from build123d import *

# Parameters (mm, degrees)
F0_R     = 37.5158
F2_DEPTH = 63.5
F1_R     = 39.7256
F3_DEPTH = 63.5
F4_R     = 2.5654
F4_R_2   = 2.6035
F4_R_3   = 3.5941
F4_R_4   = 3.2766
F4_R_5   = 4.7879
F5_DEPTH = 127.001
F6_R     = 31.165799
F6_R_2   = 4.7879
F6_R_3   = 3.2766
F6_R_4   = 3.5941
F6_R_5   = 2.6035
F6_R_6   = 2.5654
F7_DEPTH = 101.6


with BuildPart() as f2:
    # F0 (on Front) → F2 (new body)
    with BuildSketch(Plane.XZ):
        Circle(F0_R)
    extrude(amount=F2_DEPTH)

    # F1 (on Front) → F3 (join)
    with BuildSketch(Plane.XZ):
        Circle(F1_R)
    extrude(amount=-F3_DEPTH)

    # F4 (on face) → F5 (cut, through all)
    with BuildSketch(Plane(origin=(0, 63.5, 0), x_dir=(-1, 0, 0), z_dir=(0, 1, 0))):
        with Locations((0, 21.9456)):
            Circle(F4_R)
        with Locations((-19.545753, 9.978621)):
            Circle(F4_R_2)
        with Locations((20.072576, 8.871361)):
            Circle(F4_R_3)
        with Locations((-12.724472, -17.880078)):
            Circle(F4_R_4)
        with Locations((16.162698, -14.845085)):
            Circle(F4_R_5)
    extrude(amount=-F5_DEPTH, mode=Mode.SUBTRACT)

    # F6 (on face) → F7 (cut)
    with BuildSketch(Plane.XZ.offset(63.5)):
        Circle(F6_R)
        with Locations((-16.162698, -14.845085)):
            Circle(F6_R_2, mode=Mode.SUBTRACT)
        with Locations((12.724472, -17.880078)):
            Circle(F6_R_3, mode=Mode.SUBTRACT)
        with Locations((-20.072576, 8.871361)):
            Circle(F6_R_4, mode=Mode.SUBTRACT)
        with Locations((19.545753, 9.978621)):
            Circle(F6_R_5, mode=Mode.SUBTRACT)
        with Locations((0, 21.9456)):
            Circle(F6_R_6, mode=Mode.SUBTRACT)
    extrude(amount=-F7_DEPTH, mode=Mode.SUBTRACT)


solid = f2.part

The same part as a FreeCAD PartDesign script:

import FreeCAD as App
import Part
import Sketcher

V = App.Vector
Q = App.Units.Quantity

doc = App.newDocument("Part")
body = doc.addObject("PartDesign::Body", "Body")

# Sketch on XZ plane
sketch1 = doc.addObject("Sketcher::SketchObject", "Sketch")
body.addObject(sketch1)
sketch1.AttachmentSupport = (doc.XZ_Plane, [""])
sketch1.MapMode = "FlatFace"
sketch1.addGeometry(Part.Circle(V(0, 0, 0), V(0, 0, 1), 38), False)
sketch1.addConstraint([
    Sketcher.Constraint("Coincident", 0, 3, -1, 1),
    Sketcher.Constraint("Diameter", 0, Q("2.954 in")),
])
pad1 = doc.addObject("PartDesign::Pad", "Pad")
body.addObject(pad1)
pad1.Profile = sketch1
pad1.Length = Q("2.5 in")

# Sketch on XZ plane
sketch2 = doc.addObject("Sketcher::SketchObject", "Sketch001")
body.addObject(sketch2)
sketch2.AttachmentSupport = (doc.XZ_Plane, [""])
sketch2.MapMode = "FlatFace"
sketch2.addGeometry(Part.Circle(V(0, 0, 0), V(0, 0, 1), 40), False)
sketch2.addConstraint([
    Sketcher.Constraint("Coincident", 0, 3, -1, 1),
    Sketcher.Constraint("Diameter", 0, Q("3.128 in")),
])
pad2 = doc.addObject("PartDesign::Pad", "Pad001")
body.addObject(pad2)
pad2.Profile = sketch2
pad2.Length = Q("2.5 in")
pad2.Reversed = True

# Sketch on XZ plane
sketch3 = doc.addObject("Sketcher::SketchObject", "Sketch002")
body.addObject(sketch3)
sketch3.AttachmentSupport = (doc.XZ_Plane, [""])
sketch3.MapMode = "FlatFace"
sketch3.AttachmentOffset = App.Placement(V(0, 0, -2.5 * 25.4), App.Rotation())
sketch3.addGeometry([
    Part.Circle(V(0, 21.9, 0), V(0, 0, 1), 2.6),  # 0
    Part.Circle(V(19.5, 10, 0), V(0, 0, 1), 2.6),  # 1
    Part.Circle(V(-20.1, 8.9, 0), V(0, 0, 1), 3.6),  # 2
    Part.Circle(V(12.7, -17.9, 0), V(0, 0, 1), 3.3),  # 3
    Part.Circle(V(-16.2, -14.8, 0), V(0, 0, 1), 4.8),  # 4
], False)
sketch3.addConstraint([
    Sketcher.Constraint("PointOnObject", 0, 3, -2),
    Sketcher.Constraint("Diameter", 0, Q("0.202 in")),
    Sketcher.Constraint("Diameter", 1, Q("0.205 in")),
    Sketcher.Constraint("Diameter", 2, Q("0.283 in")),
    Sketcher.Constraint("Diameter", 3, Q("0.258 in")),
    Sketcher.Constraint("Diameter", 4, Q("0.377 in")),
    Sketcher.Constraint("DistanceY", -1, 1, 0, 3, Q("0.864 in")),
    Sketcher.Constraint("DistanceY", 3, 3, 1, 3, 27.858699),
    Sketcher.Constraint("DistanceY", -1, 1, 1, 3, 9.978621),
    Sketcher.Constraint("DistanceY", -1, 1, 2, 3, 8.871361),
    Sketcher.Constraint("DistanceX", 2, 3, 1, 3, 39.618329),
    Sketcher.Constraint("DistanceX", 3, 3, 1, 3, 6.821281),
    Sketcher.Constraint("DistanceX", 2, 3, 4, 3, 3.909878),
    Sketcher.Constraint("DistanceX", -1, 1, 1, 3, 19.545753),
    Sketcher.Constraint("DistanceY", 4, 3, -1, 1, 14.845085),
])
pocket1 = doc.addObject("PartDesign::Pocket", "Pocket")
body.addObject(pocket1)
pocket1.Profile = sketch3
pocket1.Type = "ThroughAll"
pocket1.Reversed = True

# Sketch on XZ plane
sketch4 = doc.addObject("Sketcher::SketchObject", "Sketch003")
body.addObject(sketch4)
sketch4.AttachmentSupport = (doc.XZ_Plane, [""])
sketch4.MapMode = "FlatFace"
sketch4.AttachmentOffset = App.Placement(V(0, 0, 2.5 * 25.4), App.Rotation())
sketch4.addGeometry([
    Part.Circle(V(0, 0, 0), V(0, 0, 1), 31.2),  # 0
    Part.Circle(V(-16.2, -14.8, 0), V(0, 0, 1), 4.8),  # 1
    Part.Circle(V(12.7, -17.9, 0), V(0, 0, 1), 3.3),  # 2
    Part.Circle(V(-20.1, 8.9, 0), V(0, 0, 1), 3.6),  # 3
    Part.Circle(V(19.5, 10, 0), V(0, 0, 1), 2.6),  # 4
    Part.Circle(V(0, 21.9, 0), V(0, 0, 1), 2.6),  # 5
], False)
sketch4.addConstraint([
    Sketcher.Constraint("Coincident", 0, 3, -1, 1),
    Sketcher.Constraint("PointOnObject", 5, 3, -2),
    Sketcher.Constraint("Diameter", 0, Q("2.4539999 in")),
    Sketcher.Constraint("Diameter", 1, Q("0.377 in")),
    Sketcher.Constraint("Diameter", 2, Q("0.258 in")),
    Sketcher.Constraint("Diameter", 3, Q("0.283 in")),
    Sketcher.Constraint("Diameter", 4, Q("0.205 in")),
    Sketcher.Constraint("Diameter", 5, Q("0.202 in")),
    Sketcher.Constraint("DistanceY", -1, 1, 5, 3, Q("0.864 in")),
    Sketcher.Constraint("DistanceY", 2, 3, 4, 3, 27.858699),
    Sketcher.Constraint("DistanceY", 2, 3, -1, 1, 17.880078),
    Sketcher.Constraint("DistanceY", -1, 1, 3, 3, 8.871361),
    Sketcher.Constraint("DistanceX", 1, 3, 2, 3, 28.88717),
    Sketcher.Constraint("DistanceX", 3, 3, 1, 3, 3.909878),
    Sketcher.Constraint("DistanceX", 2, 3, 4, 3, 6.821281),
    Sketcher.Constraint("DistanceX", 1, 3, -1, 1, 16.162698),
    Sketcher.Constraint("DistanceY", 1, 3, -1, 1, 14.845085),
])
pocket2 = doc.addObject("PartDesign::Pocket", "Pocket001")
body.addObject(pocket2)
pocket2.Profile = sketch4
pocket2.Length = Q("4 in")

doc.recompute()
